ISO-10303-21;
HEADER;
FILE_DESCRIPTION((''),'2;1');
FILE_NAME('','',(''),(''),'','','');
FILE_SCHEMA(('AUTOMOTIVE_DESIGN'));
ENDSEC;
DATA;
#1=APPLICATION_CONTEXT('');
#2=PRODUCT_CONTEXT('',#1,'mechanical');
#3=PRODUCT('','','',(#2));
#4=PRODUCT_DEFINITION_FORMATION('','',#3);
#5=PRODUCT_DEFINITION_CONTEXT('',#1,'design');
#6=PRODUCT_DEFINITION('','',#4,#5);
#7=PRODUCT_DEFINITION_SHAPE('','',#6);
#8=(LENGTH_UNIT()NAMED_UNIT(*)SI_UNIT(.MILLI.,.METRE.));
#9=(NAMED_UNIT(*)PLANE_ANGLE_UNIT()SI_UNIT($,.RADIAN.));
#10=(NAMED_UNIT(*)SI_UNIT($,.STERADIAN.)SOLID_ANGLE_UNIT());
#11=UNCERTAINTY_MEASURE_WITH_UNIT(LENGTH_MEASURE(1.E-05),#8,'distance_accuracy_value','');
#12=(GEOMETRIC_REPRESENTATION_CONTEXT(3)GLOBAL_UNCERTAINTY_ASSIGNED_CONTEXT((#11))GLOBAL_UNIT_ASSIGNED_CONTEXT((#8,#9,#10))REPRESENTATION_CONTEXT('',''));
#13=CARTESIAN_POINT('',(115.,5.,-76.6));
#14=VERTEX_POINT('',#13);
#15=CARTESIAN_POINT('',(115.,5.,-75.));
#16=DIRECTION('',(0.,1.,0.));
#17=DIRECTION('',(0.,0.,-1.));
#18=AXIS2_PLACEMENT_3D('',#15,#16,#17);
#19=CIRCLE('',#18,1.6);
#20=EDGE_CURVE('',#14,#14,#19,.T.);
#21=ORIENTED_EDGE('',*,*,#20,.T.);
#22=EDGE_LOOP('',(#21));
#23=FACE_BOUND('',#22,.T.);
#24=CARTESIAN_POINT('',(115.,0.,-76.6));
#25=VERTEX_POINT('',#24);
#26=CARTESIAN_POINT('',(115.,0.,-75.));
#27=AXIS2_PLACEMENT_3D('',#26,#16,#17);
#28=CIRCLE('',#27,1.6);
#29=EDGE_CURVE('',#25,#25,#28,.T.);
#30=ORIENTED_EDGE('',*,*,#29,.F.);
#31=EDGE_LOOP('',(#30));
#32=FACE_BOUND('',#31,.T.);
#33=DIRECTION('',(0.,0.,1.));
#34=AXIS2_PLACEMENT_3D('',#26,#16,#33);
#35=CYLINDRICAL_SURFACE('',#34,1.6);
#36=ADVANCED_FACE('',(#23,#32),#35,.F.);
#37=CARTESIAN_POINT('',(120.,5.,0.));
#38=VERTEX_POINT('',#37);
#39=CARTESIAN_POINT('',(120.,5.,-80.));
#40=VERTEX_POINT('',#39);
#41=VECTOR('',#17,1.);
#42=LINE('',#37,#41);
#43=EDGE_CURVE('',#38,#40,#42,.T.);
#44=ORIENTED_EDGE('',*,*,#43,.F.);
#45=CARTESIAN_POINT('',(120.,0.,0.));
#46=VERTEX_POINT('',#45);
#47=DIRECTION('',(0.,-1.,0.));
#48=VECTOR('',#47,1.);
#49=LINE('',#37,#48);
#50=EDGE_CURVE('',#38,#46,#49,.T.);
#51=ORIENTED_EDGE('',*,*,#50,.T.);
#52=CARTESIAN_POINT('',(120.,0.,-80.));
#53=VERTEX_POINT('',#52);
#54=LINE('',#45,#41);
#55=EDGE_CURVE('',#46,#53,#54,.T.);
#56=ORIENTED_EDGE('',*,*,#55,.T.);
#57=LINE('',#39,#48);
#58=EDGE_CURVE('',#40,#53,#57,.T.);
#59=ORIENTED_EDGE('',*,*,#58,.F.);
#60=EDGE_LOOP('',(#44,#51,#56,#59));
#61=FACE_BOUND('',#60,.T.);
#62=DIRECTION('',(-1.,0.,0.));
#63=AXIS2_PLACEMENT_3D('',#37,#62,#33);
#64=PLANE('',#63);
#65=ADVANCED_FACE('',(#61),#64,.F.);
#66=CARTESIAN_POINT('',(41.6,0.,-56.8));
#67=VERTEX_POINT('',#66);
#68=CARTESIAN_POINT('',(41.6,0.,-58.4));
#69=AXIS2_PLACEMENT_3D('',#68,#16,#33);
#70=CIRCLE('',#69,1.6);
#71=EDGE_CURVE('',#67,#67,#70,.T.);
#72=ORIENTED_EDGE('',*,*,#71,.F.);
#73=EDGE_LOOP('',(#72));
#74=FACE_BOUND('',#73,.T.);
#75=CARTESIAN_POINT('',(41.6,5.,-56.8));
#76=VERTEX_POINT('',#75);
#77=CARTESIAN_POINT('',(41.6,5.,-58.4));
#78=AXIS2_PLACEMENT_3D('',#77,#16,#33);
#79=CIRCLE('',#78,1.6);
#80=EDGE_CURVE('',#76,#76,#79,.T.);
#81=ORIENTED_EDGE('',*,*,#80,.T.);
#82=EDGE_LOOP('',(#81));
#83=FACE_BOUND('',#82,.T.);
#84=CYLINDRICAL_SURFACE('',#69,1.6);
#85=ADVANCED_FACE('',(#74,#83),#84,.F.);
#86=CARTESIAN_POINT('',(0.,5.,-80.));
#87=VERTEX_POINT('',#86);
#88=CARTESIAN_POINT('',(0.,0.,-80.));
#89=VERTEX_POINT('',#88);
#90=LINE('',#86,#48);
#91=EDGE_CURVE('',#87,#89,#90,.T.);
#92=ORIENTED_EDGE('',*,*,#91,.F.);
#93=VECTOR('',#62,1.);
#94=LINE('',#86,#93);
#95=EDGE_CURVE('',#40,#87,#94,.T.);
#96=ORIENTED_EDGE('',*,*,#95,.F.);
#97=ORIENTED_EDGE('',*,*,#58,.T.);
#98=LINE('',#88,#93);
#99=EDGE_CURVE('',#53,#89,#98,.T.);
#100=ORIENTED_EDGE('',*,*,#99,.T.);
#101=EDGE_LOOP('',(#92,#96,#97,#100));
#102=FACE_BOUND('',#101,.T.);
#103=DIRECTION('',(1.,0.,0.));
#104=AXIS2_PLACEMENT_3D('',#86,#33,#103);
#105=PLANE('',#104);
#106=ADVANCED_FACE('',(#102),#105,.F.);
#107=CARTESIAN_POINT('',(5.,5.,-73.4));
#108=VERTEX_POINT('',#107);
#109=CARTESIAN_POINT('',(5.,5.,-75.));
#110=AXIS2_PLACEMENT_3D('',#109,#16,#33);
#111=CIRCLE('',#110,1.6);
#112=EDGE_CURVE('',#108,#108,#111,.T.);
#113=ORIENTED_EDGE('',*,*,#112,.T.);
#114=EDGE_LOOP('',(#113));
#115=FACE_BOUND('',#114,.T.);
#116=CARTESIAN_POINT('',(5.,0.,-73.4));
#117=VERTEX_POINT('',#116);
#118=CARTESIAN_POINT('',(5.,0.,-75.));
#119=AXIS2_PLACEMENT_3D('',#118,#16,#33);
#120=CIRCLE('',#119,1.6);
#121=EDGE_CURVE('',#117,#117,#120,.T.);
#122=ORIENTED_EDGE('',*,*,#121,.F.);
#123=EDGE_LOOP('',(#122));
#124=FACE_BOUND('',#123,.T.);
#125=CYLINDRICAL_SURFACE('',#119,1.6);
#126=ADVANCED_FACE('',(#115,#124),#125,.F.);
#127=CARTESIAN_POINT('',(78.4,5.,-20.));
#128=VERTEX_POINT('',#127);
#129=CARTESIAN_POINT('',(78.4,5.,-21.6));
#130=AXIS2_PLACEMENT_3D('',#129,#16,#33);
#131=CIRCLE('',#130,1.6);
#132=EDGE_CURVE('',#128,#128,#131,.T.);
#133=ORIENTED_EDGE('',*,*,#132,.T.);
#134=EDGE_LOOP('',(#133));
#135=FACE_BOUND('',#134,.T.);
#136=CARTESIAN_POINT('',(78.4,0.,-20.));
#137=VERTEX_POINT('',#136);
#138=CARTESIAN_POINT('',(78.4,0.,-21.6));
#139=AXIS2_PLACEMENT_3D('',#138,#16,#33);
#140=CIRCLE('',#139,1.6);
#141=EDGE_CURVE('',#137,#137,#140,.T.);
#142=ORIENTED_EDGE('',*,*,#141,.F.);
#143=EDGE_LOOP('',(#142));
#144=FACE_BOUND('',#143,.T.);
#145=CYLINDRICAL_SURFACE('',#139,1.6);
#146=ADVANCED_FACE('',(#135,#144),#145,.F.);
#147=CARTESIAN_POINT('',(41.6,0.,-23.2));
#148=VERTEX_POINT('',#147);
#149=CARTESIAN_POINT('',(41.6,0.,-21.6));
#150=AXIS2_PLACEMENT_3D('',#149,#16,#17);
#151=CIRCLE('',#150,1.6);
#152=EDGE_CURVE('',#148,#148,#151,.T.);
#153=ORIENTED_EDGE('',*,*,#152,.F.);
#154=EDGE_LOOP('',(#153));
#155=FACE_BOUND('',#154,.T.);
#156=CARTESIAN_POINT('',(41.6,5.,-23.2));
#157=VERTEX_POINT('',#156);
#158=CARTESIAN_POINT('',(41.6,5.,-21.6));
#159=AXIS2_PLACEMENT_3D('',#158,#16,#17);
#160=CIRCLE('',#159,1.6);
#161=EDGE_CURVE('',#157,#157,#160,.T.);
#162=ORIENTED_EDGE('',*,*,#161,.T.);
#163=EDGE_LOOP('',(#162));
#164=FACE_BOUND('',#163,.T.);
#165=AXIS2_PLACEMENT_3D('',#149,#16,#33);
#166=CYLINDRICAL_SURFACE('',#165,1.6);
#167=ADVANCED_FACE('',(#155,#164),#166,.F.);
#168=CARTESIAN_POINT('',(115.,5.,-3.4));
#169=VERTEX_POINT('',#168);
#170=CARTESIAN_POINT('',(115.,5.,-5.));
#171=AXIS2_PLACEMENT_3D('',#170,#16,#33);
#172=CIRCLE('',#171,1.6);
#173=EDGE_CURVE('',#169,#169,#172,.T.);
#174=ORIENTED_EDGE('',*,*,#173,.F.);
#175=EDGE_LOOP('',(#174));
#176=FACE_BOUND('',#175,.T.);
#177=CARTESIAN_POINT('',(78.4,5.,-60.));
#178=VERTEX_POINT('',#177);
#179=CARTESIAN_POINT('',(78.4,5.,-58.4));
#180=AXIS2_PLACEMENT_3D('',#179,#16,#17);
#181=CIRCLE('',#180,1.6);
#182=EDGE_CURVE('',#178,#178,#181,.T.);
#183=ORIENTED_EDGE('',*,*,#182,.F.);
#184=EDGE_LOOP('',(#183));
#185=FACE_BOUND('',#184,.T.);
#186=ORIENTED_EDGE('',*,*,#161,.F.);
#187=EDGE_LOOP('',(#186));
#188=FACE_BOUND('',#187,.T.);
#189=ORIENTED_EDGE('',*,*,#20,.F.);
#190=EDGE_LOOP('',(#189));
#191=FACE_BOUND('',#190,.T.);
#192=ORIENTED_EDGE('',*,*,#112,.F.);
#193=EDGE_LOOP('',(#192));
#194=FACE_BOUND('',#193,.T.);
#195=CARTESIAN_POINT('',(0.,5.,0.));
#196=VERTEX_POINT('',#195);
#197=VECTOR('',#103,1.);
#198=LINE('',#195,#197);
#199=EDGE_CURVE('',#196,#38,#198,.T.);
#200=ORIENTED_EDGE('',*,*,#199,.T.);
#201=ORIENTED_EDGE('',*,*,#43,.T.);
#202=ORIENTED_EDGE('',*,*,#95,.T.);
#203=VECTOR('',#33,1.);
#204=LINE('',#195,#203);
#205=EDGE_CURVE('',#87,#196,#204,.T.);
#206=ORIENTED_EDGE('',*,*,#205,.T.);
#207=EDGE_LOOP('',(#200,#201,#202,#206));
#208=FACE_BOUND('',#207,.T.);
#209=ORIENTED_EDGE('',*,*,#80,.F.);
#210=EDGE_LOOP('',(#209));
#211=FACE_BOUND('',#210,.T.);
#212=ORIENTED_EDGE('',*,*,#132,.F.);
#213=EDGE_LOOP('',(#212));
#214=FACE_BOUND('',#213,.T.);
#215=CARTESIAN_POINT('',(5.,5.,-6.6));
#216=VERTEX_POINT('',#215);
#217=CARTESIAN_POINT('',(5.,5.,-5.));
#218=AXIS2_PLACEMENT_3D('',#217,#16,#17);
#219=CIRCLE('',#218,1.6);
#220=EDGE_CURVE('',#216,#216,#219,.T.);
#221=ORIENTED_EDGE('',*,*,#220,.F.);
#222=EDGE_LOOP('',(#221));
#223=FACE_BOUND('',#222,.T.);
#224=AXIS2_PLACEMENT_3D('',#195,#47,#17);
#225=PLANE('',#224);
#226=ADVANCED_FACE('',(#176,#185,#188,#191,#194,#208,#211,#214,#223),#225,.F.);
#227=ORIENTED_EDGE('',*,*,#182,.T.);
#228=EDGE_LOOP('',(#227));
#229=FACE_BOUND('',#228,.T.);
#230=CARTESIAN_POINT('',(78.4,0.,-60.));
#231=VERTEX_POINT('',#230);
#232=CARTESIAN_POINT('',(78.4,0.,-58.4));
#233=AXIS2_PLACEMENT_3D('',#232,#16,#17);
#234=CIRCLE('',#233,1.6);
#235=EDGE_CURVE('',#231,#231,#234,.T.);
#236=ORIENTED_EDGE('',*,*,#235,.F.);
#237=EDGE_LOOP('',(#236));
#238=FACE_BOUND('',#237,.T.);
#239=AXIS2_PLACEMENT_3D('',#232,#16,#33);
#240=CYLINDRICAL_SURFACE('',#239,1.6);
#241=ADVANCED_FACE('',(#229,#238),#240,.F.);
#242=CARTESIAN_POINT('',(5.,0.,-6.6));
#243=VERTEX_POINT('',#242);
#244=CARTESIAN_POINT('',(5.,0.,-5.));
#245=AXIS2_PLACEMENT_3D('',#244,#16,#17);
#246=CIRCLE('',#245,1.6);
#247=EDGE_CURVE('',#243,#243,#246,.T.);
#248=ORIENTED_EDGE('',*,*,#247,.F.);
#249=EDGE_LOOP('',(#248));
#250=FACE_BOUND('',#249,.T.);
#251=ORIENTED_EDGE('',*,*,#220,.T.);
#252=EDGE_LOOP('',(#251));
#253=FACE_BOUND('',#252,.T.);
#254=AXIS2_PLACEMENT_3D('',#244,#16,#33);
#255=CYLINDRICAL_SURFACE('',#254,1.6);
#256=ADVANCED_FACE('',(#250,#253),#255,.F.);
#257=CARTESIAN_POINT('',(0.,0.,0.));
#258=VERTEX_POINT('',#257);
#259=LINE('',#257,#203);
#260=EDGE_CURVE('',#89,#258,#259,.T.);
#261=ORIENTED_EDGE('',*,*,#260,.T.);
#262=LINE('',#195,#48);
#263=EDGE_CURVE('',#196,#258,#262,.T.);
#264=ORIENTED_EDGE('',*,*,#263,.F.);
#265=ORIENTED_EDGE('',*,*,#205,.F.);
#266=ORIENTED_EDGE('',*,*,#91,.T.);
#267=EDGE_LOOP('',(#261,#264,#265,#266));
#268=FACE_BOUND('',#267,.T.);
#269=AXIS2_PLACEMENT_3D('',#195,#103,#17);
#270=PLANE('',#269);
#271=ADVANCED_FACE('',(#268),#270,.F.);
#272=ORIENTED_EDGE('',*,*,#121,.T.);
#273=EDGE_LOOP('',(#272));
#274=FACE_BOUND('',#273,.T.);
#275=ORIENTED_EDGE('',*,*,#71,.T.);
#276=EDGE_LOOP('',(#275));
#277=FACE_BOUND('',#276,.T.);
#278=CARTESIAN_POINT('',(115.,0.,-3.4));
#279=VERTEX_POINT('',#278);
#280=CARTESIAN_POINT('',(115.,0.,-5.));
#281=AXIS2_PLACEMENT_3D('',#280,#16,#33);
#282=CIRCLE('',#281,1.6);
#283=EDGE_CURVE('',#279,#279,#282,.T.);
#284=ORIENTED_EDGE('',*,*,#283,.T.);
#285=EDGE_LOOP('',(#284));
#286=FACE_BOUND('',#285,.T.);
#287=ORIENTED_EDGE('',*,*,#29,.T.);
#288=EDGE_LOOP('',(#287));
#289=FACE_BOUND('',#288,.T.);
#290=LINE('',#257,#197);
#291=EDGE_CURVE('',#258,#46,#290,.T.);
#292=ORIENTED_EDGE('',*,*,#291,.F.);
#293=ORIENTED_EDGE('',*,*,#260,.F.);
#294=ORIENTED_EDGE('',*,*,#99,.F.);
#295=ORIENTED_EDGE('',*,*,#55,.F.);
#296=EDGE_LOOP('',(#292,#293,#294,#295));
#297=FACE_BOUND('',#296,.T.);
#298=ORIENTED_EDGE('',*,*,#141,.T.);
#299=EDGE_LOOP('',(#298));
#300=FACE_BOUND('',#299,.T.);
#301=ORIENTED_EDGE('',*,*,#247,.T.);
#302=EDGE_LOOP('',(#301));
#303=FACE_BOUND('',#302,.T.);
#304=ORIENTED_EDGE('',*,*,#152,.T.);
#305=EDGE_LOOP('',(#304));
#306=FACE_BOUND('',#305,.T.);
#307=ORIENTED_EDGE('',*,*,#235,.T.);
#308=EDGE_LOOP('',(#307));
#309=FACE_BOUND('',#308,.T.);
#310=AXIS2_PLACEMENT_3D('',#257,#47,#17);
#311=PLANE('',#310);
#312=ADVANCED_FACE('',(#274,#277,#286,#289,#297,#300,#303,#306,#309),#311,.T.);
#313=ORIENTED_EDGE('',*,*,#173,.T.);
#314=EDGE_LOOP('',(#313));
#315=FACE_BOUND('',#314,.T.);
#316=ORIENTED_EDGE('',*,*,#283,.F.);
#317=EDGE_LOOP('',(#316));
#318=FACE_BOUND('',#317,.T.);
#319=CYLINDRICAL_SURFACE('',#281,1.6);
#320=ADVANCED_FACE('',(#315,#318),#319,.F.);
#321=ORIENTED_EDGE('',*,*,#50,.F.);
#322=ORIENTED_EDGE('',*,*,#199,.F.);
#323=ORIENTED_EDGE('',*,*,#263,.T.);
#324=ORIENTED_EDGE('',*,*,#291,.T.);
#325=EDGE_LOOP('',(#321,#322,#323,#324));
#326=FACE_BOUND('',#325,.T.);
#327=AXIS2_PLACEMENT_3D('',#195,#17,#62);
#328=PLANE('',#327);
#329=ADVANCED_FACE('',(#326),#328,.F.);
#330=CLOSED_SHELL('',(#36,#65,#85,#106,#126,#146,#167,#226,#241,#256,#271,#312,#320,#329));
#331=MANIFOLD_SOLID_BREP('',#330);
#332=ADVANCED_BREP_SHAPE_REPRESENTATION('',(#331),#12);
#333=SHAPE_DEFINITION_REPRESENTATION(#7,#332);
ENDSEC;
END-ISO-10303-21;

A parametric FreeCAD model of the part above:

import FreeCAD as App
import Part
import Sketcher
Q = App.Units.Quantity

doc = App.newDocument("Part")
body = doc.addObject("PartDesign::Body", "Body")

sketch1 = body.newObject("Sketcher::SketchObject", "Sketch")
sketch1.AttachmentSupport = (doc.getObject("XZ_Plane"), [""])
sketch1.MapMode = "FlatFace"
sketch1.addGeometry([
    Part.LineSegment(App.Vector(0, -80, 0), App.Vector(0, 0, 0)),
    Part.LineSegment(App.Vector(0, 0, 0), App.Vector(120, 0, 0)),
    Part.LineSegment(App.Vector(120, 0, 0), App.Vector(120, -80, 0)),
    Part.LineSegment(App.Vector(120, -80, 0), App.Vector(0, -80, 0)),
], False)
sketch1.addConstraint([
    Sketcher.Constraint("Coincident", 0, 2, 1, 1),
    Sketcher.Constraint("Coincident", 1, 2, 2, 1),
    Sketcher.Constraint("Coincident", 2, 2, 3, 1),
    Sketcher.Constraint("Coincident", 3, 2, 0, 1),
    Sketcher.Constraint("Vertical", 0),
    Sketcher.Constraint("Horizontal", 1),
    Sketcher.Constraint("Vertical", 2),
    Sketcher.Constraint("Horizontal", 3),
    Sketcher.Constraint("Coincident", 0, 2, -1, 1),
    Sketcher.Constraint("DistanceX", 1, 1, 1, 2, Q("120 mm")),
    Sketcher.Constraint("DistanceY", 0, 1, 0, 2, Q("80 mm")),
])
pad1 = body.newObject("PartDesign::Pad", "Pad")
pad1.Profile = sketch1
pad1.Length = 5
pad1.Reversed = True

sketch2 = body.newObject("Sketcher::SketchObject", "Sketch001")
sketch2.AttachmentSupport = (doc.getObject("XZ_Plane"), [""])
sketch2.MapMode = "FlatFace"
sketch2.AttachmentOffset = App.Placement(App.Vector(0, 0, -5), App.Rotation())
sketch2.addGeometry([
    Part.Circle(App.Vector(5, -75, 0), App.Vector(0, 0, 1), 1.6),
    Part.Circle(App.Vector(115, -75, 0), App.Vector(0, 0, 1), 1.6),
    Part.Circle(App.Vector(115, -5, 0), App.Vector(0, 0, 1), 1.6),
    Part.Circle(App.Vector(5, -5, 0), App.Vector(0, 0, 1), 1.6),
    Part.Circle(App.Vector(41.6, -58.4, 0), App.Vector(0, 0, 1), 1.6),
    Part.Circle(App.Vector(41.6, -21.6, 0), App.Vector(0, 0, 1), 1.6),
    Part.Circle(App.Vector(78.4, -21.6, 0), App.Vector(0, 0, 1), 1.6),
    Part.Circle(App.Vector(78.4, -58.4, 0), App.Vector(0, 0, 1), 1.6),
], False)
sketch2.addConstraint([
    Sketcher.Constraint("Equal", 0, 1),
    Sketcher.Constraint("Equal", 1, 2),
    Sketcher.Constraint("Equal", 2, 3),
    Sketcher.Constraint("Equal", 3, 4),
    Sketcher.Constraint("Equal", 4, 5),
    Sketcher.Constraint("Equal", 5, 6),
    Sketcher.Constraint("Equal", 6, 7),
    Sketcher.Constraint("Horizontal", 0, 3, 1, 3),
    Sketcher.Constraint("Horizontal", 2, 3, 3, 3),
    Sketcher.Constraint("Horizontal", 5, 3, 6, 3),
    Sketcher.Constraint("Horizontal", 4, 3, 7, 3),
    Sketcher.Constraint("Vertical", 1, 3, 2, 3),
    Sketcher.Constraint("Vertical", 0, 3, 3, 3),
    Sketcher.Constraint("Vertical", 4, 3, 5, 3),
    Sketcher.Constraint("Vertical", 6, 3, 7, 3),
    Sketcher.Constraint("Diameter", 0, Q("3.2 mm")),
    Sketcher.Constraint("DistanceX", -1, 1, 0, 3, Q("5 mm")),
    Sketcher.Constraint("DistanceY", 0, 3, -1, 1, Q("75 mm")),
    Sketcher.Constraint("DistanceX", -1, 1, 1, 3, Q("115 mm")),
    Sketcher.Constraint("DistanceY", 2, 3, -1, 1, Q("5 mm")),
    Sketcher.Constraint("DistanceX", -1, 1, 4, 3, Q("41.6 mm")),
    Sketcher.Constraint("DistanceY", 4, 3, -1, 1, Q("58.4 mm")),
    Sketcher.Constraint("DistanceY", 5, 3, -1, 1, Q("21.6 mm")),
    Sketcher.Constraint("DistanceX", -1, 1, 6, 3, Q("78.4 mm")),
])
pocket1 = body.newObject("PartDesign::Pocket", "Pocket")
pocket1.Profile = sketch2
pocket1.Type = "ThroughAll"
pocket1.Reversed = True

doc.recompute()
